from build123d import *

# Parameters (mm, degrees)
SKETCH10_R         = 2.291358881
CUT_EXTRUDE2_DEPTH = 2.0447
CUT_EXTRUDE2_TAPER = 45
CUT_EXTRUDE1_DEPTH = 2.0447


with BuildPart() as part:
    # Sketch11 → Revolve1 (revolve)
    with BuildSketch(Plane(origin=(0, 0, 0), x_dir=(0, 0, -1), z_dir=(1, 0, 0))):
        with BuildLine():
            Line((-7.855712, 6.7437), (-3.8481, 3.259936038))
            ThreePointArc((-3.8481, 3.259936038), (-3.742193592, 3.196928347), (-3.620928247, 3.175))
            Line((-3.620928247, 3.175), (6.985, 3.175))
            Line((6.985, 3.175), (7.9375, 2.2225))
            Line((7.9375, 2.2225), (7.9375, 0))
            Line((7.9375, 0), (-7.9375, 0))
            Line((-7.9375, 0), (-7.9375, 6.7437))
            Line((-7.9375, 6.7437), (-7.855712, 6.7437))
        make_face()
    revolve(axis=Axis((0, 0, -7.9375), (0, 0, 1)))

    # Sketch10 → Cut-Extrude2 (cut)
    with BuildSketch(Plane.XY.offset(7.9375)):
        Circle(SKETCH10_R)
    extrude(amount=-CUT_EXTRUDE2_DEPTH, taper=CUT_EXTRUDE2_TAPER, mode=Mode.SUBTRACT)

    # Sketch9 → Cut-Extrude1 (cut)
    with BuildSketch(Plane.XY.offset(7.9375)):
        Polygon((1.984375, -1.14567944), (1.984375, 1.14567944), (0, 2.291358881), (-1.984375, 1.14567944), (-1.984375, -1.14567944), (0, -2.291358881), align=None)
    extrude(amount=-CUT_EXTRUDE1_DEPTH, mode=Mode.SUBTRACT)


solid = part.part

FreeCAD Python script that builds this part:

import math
import FreeCAD as App
import Part
import Sketcher
Q = App.Units.Quantity

doc = App.newDocument("Part")
params = doc.addObject("Spreadsheet::Sheet", "Params")
for row, (alias, value) in enumerate([
    ("sketch1_height", "0.625 in"),
    ("revolution_angle", "360 deg"),
    ("pocket1_length", "0.0805 in"),
    ("pocket1_taper", "-45 deg"),
    ("pocket2_length", "0.0805 in"),
], start=1):
    params.set(f"A{row}", alias)
    params.set(f"B{row}", "=" + value)
    params.setAlias(f"B{row}", alias)

body = doc.addObject("PartDesign::Body", "Body")

sketch1 = body.newObject("Sketcher::SketchObject", "Sketch")
sketch1.AttachmentSupport = (doc.getObject("YZ_Plane"), [""])
sketch1.MapMode = "FlatFace"
sketch1.addGeometry([
    Part.LineSegment(App.Vector(3.259936, 3.8481, 0), App.Vector(6.7437, 7.855712, 0)),
    Part.LineSegment(App.Vector(6.7437, 7.855712, 0), App.Vector(6.7437, 7.9375, 0)),
    Part.LineSegment(App.Vector(6.7437, 7.9375, 0), App.Vector(0, 7.9375, 0)),
    Part.LineSegment(App.Vector(0, 7.9375, 0), App.Vector(0, -7.9375, 0)),
    Part.LineSegment(App.Vector(0, -7.9375, 0), App.Vector(2.2225, -7.9375, 0)),
    Part.LineSegment(App.Vector(2.2225, -7.9375, 0), App.Vector(3.175, -6.985, 0)),
    Part.LineSegment(App.Vector(3.175, -6.985, 0), App.Vector(3.175, 3.620928, 0)),
    Part.ArcOfCircle(Part.Circle(App.Vector(3.521267, 3.620928, 0), App.Vector(0, 0, 1), 0.346267), math.radians(139), math.radians(180)),
], False)
sketch1.addConstraint([
    Sketcher.Constraint("Coincident", 0, 2, 1, 1),
    Sketcher.Constraint("Coincident", 1, 2, 2, 1),
    Sketcher.Constraint("Coincident", 2, 2, 3, 1),
    Sketcher.Constraint("Coincident", 3, 2, 4, 1),
    Sketcher.Constraint("Coincident", 4, 2, 5, 1),
    Sketcher.Constraint("Coincident", 5, 2, 6, 1),
    Sketcher.Constraint("Tangent", 6, 2, 7, 2),
    Sketcher.Constraint("Tangent", 7, 1, 0, 1),
    Sketcher.Constraint("Vertical", 1),
    Sketcher.Constraint("Horizontal", 2),
    Sketcher.Constraint("Vertical", 3),
    Sketcher.Constraint("Horizontal", 4),
    Sketcher.Constraint("Vertical", 6),
    Sketcher.Constraint("Symmetric", 2, 2, 3, 2, -1, 1),
    Sketcher.Constraint("Angle", 0, Q("49 deg")),
    Sketcher.Constraint("Angle", 5, Q("45 deg")),
    Sketcher.Constraint("DistanceY", 3, 2, 3, 1, Q("0.625 in")),
    Sketcher.Constraint("DistanceX", 2, 2, 2, 1, Q("0.2655 in")),
    Sketcher.Constraint("DistanceX", 4, 1, 4, 2, Q("0.0875 in")),
    Sketcher.Constraint("DistanceX", -1, 1, 5, 2, Q("0.125 in")),
    Sketcher.Constraint("DistanceY", 7, 1, 2, 2, Q("0.161 in")),
    Sketcher.Constraint("Radius", 7, Q("0.346267 mm")),
])
sketch1.setExpression("Constraints[16]", "Params.sketch1_height")
revolution = body.newObject("PartDesign::Revolution", "Revolution")
revolution.Profile = sketch1
revolution.ReferenceAxis = (sketch1, ["V_Axis"])
revolution.setExpression("Angle", "Params.revolution_angle")

sketch2 = body.newObject("Sketcher::SketchObject", "Sketch001")
sketch2.AttachmentSupport = (doc.getObject("XY_Plane"), [""])
sketch2.MapMode = "FlatFace"
sketch2.AttachmentOffset = App.Placement(App.Vector(0, 0, 0.3125 * 25.4), App.Rotation())
sketch2.addGeometry(Part.Circle(App.Vector(0, 0, 0), App.Vector(0, 0, 1), 2.291359), False)
sketch2.addConstraint([
    Sketcher.Constraint("Coincident", 0, 3, -1, 1),
    Sketcher.Constraint("Diameter", 0, Q("4.582718 mm")),
])
pocket1 = body.newObject("PartDesign::Pocket", "Pocket")
pocket1.Profile = sketch2
pocket1.setExpression("Length", "Params.pocket1_length")
pocket1.setExpression("TaperAngle", "Params.pocket1_taper")

sketch3 = body.newObject("Sketcher::SketchObject", "Sketch002")
sketch3.AttachmentSupport = (doc.getObject("XY_Plane"), [""])
sketch3.MapMode = "FlatFace"
sketch3.AttachmentOffset = App.Placement(App.Vector(0, 0, 0.3125 * 25.4), App.Rotation())
sketch3.addGeometry([
    Part.LineSegment(App.Vector(1.984375, -1.145679, 0), App.Vector(1.984375, 1.145679, 0)),
    Part.LineSegment(App.Vector(1.984375, 1.145679, 0), App.Vector(0, 2.291359, 0)),
    Part.LineSegment(App.Vector(0, 2.291359, 0), App.Vector(-1.984375, 1.145679, 0)),
    Part.LineSegment(App.Vector(-1.984375, 1.145679, 0), App.Vector(-1.984375, -1.145679, 0)),
    Part.LineSegment(App.Vector(-1.984375, -1.145679, 0), App.Vector(0, -2.291359, 0)),
    Part.LineSegment(App.Vector(0, -2.291359, 0), App.Vector(1.984375, -1.145679, 0)),
], False)
sketch3.addConstraint([
    Sketcher.Constraint("Coincident", 0, 2, 1, 1),
    Sketcher.Constraint("Coincident", 1, 2, 2, 1),
    Sketcher.Constraint("Coincident", 2, 2, 3, 1),
    Sketcher.Constraint("Coincident", 3, 2, 4, 1),
    Sketcher.Constraint("Coincident", 4, 2, 5, 1),
    Sketcher.Constraint("Coincident", 5, 2, 0, 1),
    Sketcher.Constraint("Vertical", 0),
    Sketcher.Constraint("Vertical", 3),
    Sketcher.Constraint("Symmetric", 0, 2, 3, 2, -1, 1),
    Sketcher.Constraint("Symmetric", 1, 2, 4, 2, -1, 1),
    Sketcher.Constraint("PointOnObject", 1, 2, -2),
    Sketcher.Constraint("Parallel", 2, 5),
    Sketcher.Constraint("Horizontal", 0, 2, 2, 2),
    Sketcher.Constraint("Angle", 1, Q("150 deg")),
    Sketcher.Constraint("DistanceX", -1, 1, 0, 2, Q("0.078125 in")),
    Sketcher.Constraint("DistanceY", 0, 1, 0, 2, Q("2.291359 mm")),
])
pocket2 = body.newObject("PartDesign::Pocket", "Pocket001")
pocket2.Profile = sketch3
pocket2.setExpression("Length", "Params.pocket2_length")

doc.recompute()
